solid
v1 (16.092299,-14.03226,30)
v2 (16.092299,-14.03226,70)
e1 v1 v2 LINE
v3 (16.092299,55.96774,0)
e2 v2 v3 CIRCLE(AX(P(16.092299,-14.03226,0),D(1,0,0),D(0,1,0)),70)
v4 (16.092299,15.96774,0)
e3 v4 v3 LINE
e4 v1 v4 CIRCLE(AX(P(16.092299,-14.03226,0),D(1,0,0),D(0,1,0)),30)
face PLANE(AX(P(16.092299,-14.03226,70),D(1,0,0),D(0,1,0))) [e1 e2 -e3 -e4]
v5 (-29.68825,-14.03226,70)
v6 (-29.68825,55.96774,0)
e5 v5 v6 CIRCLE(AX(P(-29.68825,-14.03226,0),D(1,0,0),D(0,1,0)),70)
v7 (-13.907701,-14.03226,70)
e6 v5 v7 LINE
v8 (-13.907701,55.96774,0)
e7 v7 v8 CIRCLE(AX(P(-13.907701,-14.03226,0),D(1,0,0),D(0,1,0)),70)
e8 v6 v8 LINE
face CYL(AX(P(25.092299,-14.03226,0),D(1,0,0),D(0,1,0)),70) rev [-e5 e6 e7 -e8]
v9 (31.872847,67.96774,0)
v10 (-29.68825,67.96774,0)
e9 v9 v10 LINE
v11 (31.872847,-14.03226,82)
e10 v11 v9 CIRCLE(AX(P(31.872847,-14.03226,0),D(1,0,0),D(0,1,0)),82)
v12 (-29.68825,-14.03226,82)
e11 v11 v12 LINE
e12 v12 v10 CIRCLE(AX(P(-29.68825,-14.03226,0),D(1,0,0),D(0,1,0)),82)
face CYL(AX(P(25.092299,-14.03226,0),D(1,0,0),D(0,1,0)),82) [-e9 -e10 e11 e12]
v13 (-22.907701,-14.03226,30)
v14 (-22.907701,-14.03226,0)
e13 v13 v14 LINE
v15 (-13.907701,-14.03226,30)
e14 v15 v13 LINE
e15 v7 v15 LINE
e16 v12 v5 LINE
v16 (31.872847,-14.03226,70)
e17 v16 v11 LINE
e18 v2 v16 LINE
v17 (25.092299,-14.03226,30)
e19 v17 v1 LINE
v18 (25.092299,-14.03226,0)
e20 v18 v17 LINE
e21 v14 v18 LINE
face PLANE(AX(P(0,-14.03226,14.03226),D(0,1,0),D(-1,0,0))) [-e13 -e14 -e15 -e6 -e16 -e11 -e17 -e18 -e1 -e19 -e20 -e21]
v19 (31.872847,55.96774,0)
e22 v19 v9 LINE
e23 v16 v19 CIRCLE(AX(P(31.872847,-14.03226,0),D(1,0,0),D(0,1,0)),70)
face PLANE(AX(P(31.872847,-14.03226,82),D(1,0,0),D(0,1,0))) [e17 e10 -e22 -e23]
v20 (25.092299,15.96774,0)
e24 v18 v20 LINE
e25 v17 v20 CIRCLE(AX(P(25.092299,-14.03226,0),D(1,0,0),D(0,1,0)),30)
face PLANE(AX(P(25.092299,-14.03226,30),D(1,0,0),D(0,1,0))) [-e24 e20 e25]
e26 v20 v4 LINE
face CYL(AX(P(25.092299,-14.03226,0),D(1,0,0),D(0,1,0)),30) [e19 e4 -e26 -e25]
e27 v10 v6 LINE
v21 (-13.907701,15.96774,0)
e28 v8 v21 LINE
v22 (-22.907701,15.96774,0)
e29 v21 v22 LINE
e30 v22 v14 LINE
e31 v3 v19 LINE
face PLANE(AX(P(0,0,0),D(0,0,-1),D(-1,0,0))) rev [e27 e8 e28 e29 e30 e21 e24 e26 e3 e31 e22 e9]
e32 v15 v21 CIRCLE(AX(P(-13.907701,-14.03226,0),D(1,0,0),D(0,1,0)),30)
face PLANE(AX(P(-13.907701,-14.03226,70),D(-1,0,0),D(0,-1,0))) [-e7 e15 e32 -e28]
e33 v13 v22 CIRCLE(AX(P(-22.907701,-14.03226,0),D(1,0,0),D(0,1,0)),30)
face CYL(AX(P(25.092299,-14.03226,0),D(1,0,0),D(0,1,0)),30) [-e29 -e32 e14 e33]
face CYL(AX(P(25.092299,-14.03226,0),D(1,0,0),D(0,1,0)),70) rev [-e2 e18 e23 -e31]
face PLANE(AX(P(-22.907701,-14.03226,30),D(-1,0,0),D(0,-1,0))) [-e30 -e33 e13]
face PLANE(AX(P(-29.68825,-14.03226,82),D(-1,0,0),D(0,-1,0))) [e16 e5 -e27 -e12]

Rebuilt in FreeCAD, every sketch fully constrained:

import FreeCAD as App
import Part
import Sketcher

doc = App.newDocument("Part")
body = doc.addObject("PartDesign::Body", "Body")

# Sketch on XY plane
sketch1 = body.newObject("Sketcher::SketchObject", "Sketch")
sketch1.AttachmentSupport = (doc.getObject("XY_Plane"), [""])
sketch1.MapMode = "FlatFace"
sketch1.addGeometry([
    Part.LineSegment(App.Vector(32, 68, 0), App.Vector(-30, 68, 0)),  # 0
    Part.LineSegment(App.Vector(-30, 68, 0), App.Vector(-30, 56, 0)),  # 1
    Part.LineSegment(App.Vector(-30, 56, 0), App.Vector(-14, 56, 0)),  # 2
    Part.LineSegment(App.Vector(-14, 56, 0), App.Vector(-14, 16, 0)),  # 3
    Part.LineSegment(App.Vector(-14, 16, 0), App.Vector(-23, 16, 0)),  # 4
    Part.LineSegment(App.Vector(-23, 16, 0), App.Vector(-23, -14, 0)),  # 5
    Part.LineSegment(App.Vector(-23, -14, 0), App.Vector(25, -14, 0)),  # 6
    Part.LineSegment(App.Vector(25, -14, 0), App.Vector(25, 16, 0)),  # 7
    Part.LineSegment(App.Vector(25, 16, 0), App.Vector(16, 16, 0)),  # 8
    Part.LineSegment(App.Vector(16, 16, 0), App.Vector(16, 56, 0)),  # 9
    Part.LineSegment(App.Vector(16, 56, 0), App.Vector(32, 56, 0)),  # 10
    Part.LineSegment(App.Vector(32, 56, 0), App.Vector(32, 68, 0)),  # 11
], False)
sketch1.addGeometry(Part.LineSegment(App.Vector(32, -14, 0), App.Vector(-30, -14, 0)), True)  # axis
sketch1.addConstraint([
    Sketcher.Constraint("Coincident", 0, 2, 1, 1),
    Sketcher.Constraint("Coincident", 1, 2, 2, 1),
    Sketcher.Constraint("Coincident", 2, 2, 3, 1),
    Sketcher.Constraint("Coincident", 3, 2, 4, 1),
    Sketcher.Constraint("Coincident", 4, 2, 5, 1),
    Sketcher.Constraint("Coincident", 5, 2, 6, 1),
    Sketcher.Constraint("Coincident", 6, 2, 7, 1),
    Sketcher.Constraint("Coincident", 7, 2, 8, 1),
    Sketcher.Constraint("Coincident", 8, 2, 9, 1),
    Sketcher.Constraint("Coincident", 9, 2, 10, 1),
    Sketcher.Constraint("Coincident", 10, 2, 11, 1),
    Sketcher.Constraint("Coincident", 11, 2, 0, 1),
    Sketcher.Constraint("Horizontal", 0),
    Sketcher.Constraint("Vertical", 1),
    Sketcher.Constraint("Horizontal", 2),
    Sketcher.Constraint("Vertical", 3),
    Sketcher.Constraint("Horizontal", 4),
    Sketcher.Constraint("Vertical", 5),
    Sketcher.Constraint("Horizontal", 6),
    Sketcher.Constraint("Vertical", 7),
    Sketcher.Constraint("Horizontal", 8),
    Sketcher.Constraint("Vertical", 9),
    Sketcher.Constraint("Horizontal", 10),
    Sketcher.Constraint("Vertical", 11),
    Sketcher.Constraint("Horizontal", 12),
    Sketcher.Constraint("Horizontal", 4, 2, 7, 2),
    Sketcher.Constraint("Horizontal", 2, 2, 9, 2),
    Sketcher.Constraint("Horizontal", 6, 2, 12, 1),
    Sketcher.Constraint("Vertical", 11, 2, 12, 1),
    Sketcher.Constraint("Vertical", 1, 2, 12, 2),
    Sketcher.Constraint("Equal", 4, 8),
    Sketcher.Constraint("Equal", 2, 10),
    Sketcher.Constraint("DistanceX", 4, 2, 4, 1, 9.0),
    Sketcher.Constraint("DistanceX", 6, 1, 6, 2, 48.0),
    Sketcher.Constraint("DistanceY", 1, 2, 1, 1, 12.0),
    Sketcher.Constraint("DistanceY", 3, 2, 3, 1, 40.0),
    Sketcher.Constraint("DistanceY", 5, 2, 5, 1, 30.0),
    Sketcher.Constraint("DistanceX", 2, 1, 2, 2, 15.780548),
    Sketcher.Constraint("DistanceX", 2, 2, -1, 1, 13.907701),
    Sketcher.Constraint("DistanceY", -1, 1, 0, 2, 67.96774),
])
revolution = body.newObject("PartDesign::Revolution", "Revolution")
revolution.Profile = sketch1
revolution.ReferenceAxis = (sketch1, ["Axis0"])
revolution.Angle = 270

doc.recompute()
